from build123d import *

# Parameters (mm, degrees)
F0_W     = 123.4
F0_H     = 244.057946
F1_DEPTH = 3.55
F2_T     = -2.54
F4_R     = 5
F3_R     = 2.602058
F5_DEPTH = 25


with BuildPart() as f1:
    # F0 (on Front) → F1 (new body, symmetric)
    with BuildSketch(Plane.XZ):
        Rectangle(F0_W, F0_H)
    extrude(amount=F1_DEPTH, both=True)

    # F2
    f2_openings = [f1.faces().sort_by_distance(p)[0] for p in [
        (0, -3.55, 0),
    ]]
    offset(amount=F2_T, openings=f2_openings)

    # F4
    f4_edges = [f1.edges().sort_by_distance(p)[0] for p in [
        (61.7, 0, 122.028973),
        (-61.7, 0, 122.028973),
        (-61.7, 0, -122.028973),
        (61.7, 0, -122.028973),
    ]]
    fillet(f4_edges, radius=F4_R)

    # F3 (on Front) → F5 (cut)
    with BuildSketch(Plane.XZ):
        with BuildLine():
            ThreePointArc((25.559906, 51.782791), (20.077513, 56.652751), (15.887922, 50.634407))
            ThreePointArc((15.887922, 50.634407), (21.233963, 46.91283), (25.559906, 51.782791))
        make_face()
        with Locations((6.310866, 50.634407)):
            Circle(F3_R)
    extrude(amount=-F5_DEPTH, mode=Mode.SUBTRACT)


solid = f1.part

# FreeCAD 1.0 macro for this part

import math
import FreeCAD as App
import Part
import Sketcher

V = App.Vector
Q = App.Units.Quantity


def edges_at(feature, points):
    """Names of the edges that pass closest to the given points."""
    edges = feature.Shape.Edges
    near = lambda p: min(range(len(edges)), key=lambda i: edges[i].distToShape(Part.Vertex(*p))[0])
    return sorted({f"Edge{near(p) + 1}" for p in points})


def faces_at(feature, points):
    """Names of the faces that lie closest to the given points."""
    faces = feature.Shape.Faces
    near = lambda p: min(range(len(faces)), key=lambda i: faces[i].distToShape(Part.Vertex(*p))[0])
    return sorted({f"Face{near(p) + 1}" for p in points})

doc = App.newDocument("Part")
body = doc.addObject("PartDesign::Body", "Body")

# Sketch on XZ plane
sketch1 = body.newObject("Sketcher::SketchObject", "Sketch")
sketch1.AttachmentSupport = (doc.getObject("XZ_Plane"), [""])
sketch1.MapMode = "FlatFace"
sketch1.addGeometry(Part.LineSegment(V(-62, 122, 0), V(-62, -122, 0)), False)
sketch1.addGeometry(Part.LineSegment(V(-62, -122, 0), V(62, -122, 0)), False)
sketch1.addGeometry(Part.LineSegment(V(62, -122, 0), V(62, 122, 0)), False)
sketch1.addGeometry(Part.LineSegment(V(62, 122, 0), V(-62, 122, 0)), False)
sketch1.addConstraint(Sketcher.Constraint("Coincident", 0, 2, 1, 1))
sketch1.addConstraint(Sketcher.Constraint("Coincident", 1, 2, 2, 1))
sketch1.addConstraint(Sketcher.Constraint("Coincident", 2, 2, 3, 1))
sketch1.addConstraint(Sketcher.Constraint("Coincident", 3, 2, 0, 1))
sketch1.addConstraint(Sketcher.Constraint("Vertical", 0))
sketch1.addConstraint(Sketcher.Constraint("Horizontal", 1))
sketch1.addConstraint(Sketcher.Constraint("Vertical", 2))
sketch1.addConstraint(Sketcher.Constraint("Horizontal", 3))
sketch1.addConstraint(Sketcher.Constraint("Symmetric", 0, 2, 2, 2, -1, 1))
sketch1.addConstraint(Sketcher.Constraint("DistanceX", 1, 1, 1, 2, Q("123.4 mm")))
sketch1.addConstraint(Sketcher.Constraint("DistanceY", 0, 2, 0, 1, Q("244.057946 mm")))
pad1 = body.newObject("PartDesign::Pad", "Pad")
pad1.Profile = sketch1
pad1.Length = 7.1
pad1.Midplane = True
doc.recompute()

thickness = body.newObject("PartDesign::Thickness", "Thickness")
thickness.Base = (pad1, faces_at(pad1, [(0, -3.55, 0)]))
thickness.Value = 2.54
thickness.Reversed = True
thickness.Join = "Arc"
doc.recompute()

fillet = body.newObject("PartDesign::Fillet", "Fillet")
fillet.Base = (thickness, edges_at(thickness, [
    (61.7, 0, 122.029),
    (-61.7, 0, 122.029),
    (-61.7, 0, -122.029),
    (61.7, 0, -122.029),
]))
fillet.Radius = 5

# Sketch on XZ plane
sketch2 = body.newObject("Sketcher::SketchObject", "Sketch001")
sketch2.AttachmentSupport = (doc.getObject("XZ_Plane"), [""])
sketch2.MapMode = "FlatFace"
sketch2.addGeometry(Part.ArcOfCircle(Part.Circle(V(20.7, 51.8, 0), V(0, 0, 1), 4.9), math.radians(0), math.radians(194)), False)
sketch2.addGeometry(Part.ArcOfCircle(Part.Circle(V(20.7, 51.8, 0), V(0, 0, 1), 4.9), math.radians(-166), math.radians(0)), False)
sketch2.addGeometry(Part.Circle(V(6.3, 50.6, 0), V(0, 0, 1), 2.6), False)
sketch2.addConstraint(Sketcher.Constraint("Tangent", 0, 1, 1, 2))
sketch2.addConstraint(Sketcher.Constraint("Coincident", 1, 1, 0, 2))
sketch2.addConstraint(Sketcher.Constraint("Horizontal", 1, 3, 0, 1))
sketch2.addConstraint(Sketcher.Constraint("Horizontal", 2, 3, 1, 1))
sketch2.addConstraint(Sketcher.Constraint("Diameter", 2, Q("5.204116 mm")))
sketch2.addConstraint(Sketcher.Constraint("Radius", 0, Q("4.904168 mm")))
sketch2.addConstraint(Sketcher.Constraint("DistanceX", -1, 1, 0, 3, Q("20.655738 mm")))
sketch2.addConstraint(Sketcher.Constraint("DistanceY", -1, 1, 0, 3, Q("51.782791 mm")))
sketch2.addConstraint(Sketcher.Constraint("DistanceX", -1, 1, 1, 1, Q("15.887922 mm")))
sketch2.addConstraint(Sketcher.Constraint("DistanceX", 2, 3, 0, 1, Q("19.24904 mm")))
pocket1 = body.newObject("PartDesign::Pocket", "Pocket")
pocket1.Profile = sketch2
pocket1.Length = 25

doc.recompute()
